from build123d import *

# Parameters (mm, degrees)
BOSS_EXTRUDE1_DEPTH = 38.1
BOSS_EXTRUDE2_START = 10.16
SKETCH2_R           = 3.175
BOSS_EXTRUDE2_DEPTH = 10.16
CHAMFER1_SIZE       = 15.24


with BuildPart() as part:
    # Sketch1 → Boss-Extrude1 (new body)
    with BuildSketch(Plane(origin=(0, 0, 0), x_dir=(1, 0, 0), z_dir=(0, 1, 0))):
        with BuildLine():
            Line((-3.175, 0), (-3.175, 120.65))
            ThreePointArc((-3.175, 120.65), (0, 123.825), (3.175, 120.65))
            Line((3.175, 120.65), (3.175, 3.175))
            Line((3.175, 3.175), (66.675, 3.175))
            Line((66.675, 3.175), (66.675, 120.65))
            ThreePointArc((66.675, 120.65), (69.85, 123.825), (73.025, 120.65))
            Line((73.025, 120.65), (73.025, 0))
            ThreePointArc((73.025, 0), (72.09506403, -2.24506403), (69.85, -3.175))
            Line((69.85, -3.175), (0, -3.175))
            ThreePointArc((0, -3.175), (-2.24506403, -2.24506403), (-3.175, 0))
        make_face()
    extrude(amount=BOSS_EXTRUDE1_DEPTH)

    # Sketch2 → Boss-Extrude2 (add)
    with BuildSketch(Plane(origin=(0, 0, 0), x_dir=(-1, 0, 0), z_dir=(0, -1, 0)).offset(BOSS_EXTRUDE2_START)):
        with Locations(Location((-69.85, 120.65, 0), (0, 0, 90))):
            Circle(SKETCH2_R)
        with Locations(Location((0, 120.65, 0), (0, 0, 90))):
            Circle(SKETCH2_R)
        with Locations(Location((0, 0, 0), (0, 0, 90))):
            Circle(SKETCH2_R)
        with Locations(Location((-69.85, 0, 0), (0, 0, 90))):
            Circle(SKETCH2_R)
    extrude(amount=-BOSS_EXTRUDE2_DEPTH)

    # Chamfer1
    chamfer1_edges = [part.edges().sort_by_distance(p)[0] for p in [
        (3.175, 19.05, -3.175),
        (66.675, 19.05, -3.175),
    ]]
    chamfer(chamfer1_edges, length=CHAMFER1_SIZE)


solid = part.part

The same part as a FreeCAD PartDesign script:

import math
import FreeCAD as App
import Part
import Sketcher
Q = App.Units.Quantity


def edges_at(feature, points):
    """Names of the edges that pass closest to the given points."""
    edges = feature.Shape.Edges
    near = lambda p: min(range(len(edges)), key=lambda i: edges[i].distToShape(Part.Vertex(*p))[0])
    return sorted({f"Edge{near(p) + 1}" for p in points})

doc = App.newDocument("Part")
body = doc.addObject("PartDesign::Body", "Body")

# Sketch on XZ plane
sketch1 = body.newObject("Sketcher::SketchObject", "Sketch")
sketch1.AttachmentSupport = (doc.getObject("XZ_Plane"), [""])
sketch1.MapMode = "FlatFace"
sketch1.addGeometry(Part.LineSegment(App.Vector(-3.2, -120.7, 0), App.Vector(-3.2, 0, 0)), False)
sketch1.addGeometry(Part.ArcOfCircle(Part.Circle(App.Vector(0, 0, 0), App.Vector(0, 0, 1), 3.2), math.radians(90), math.radians(180)), False)
sketch1.addGeometry(Part.LineSegment(App.Vector(0, 3.2, 0), App.Vector(69.8, 3.2, 0)), False)
sketch1.addGeometry(Part.ArcOfCircle(Part.Circle(App.Vector(69.8, 0, 0), App.Vector(0, 0, 1), 3.2), math.radians(0), math.radians(90)), False)
sketch1.addGeometry(Part.LineSegment(App.Vector(73, 0, 0), App.Vector(73, -120.7, 0)), False)
sketch1.addGeometry(Part.ArcOfCircle(Part.Circle(App.Vector(69.8, -120.7, 0), App.Vector(0, 0, 1), 3.2), math.radians(180), math.radians(360)), False)
sketch1.addGeometry(Part.LineSegment(App.Vector(66.7, -120.7, 0), App.Vector(66.7, -3.2, 0)), False)
sketch1.addGeometry(Part.LineSegment(App.Vector(66.7, -3.2, 0), App.Vector(3.2, -3.2, 0)), False)
sketch1.addGeometry(Part.LineSegment(App.Vector(3.2, -3.2, 0), App.Vector(3.2, -120.7, 0)), False)
sketch1.addGeometry(Part.ArcOfCircle(Part.Circle(App.Vector(0, -120.7, 0), App.Vector(0, 0, 1), 3.2), math.radians(180), math.radians(360)), False)
sketch1.addConstraint(Sketcher.Constraint("Tangent", 0, 2, 1, 2))
sketch1.addConstraint(Sketcher.Constraint("Tangent", 1, 1, 2, 1))
sketch1.addConstraint(Sketcher.Constraint("Tangent", 2, 2, 3, 2))
sketch1.addConstraint(Sketcher.Constraint("Tangent", 3, 1, 4, 1))
sketch1.addConstraint(Sketcher.Constraint("Tangent", 4, 2, 5, 2))
sketch1.addConstraint(Sketcher.Constraint("Tangent", 5, 1, 6, 1))
sketch1.addConstraint(Sketcher.Constraint("Coincident", 6, 2, 7, 1))
sketch1.addConstraint(Sketcher.Constraint("Coincident", 7, 2, 8, 1))
sketch1.addConstraint(Sketcher.Constraint("Tangent", 8, 2, 9, 2))
sketch1.addConstraint(Sketcher.Constraint("Tangent", 9, 1, 0, 1))
sketch1.addConstraint(Sketcher.Constraint("Vertical", 0))
sketch1.addConstraint(Sketcher.Constraint("Horizontal", 2))
sketch1.addConstraint(Sketcher.Constraint("Vertical", 4))
sketch1.addConstraint(Sketcher.Constraint("Vertical", 6))
sketch1.addConstraint(Sketcher.Constraint("Horizontal", 7))
sketch1.addConstraint(Sketcher.Constraint("Vertical", 8))
sketch1.addConstraint(Sketcher.Constraint("Coincident", 1, 3, -1, 1))
sketch1.addConstraint(Sketcher.Constraint("Equal", 1, 3))
sketch1.addConstraint(Sketcher.Constraint("Equal", 3, 5))
sketch1.addConstraint(Sketcher.Constraint("Equal", 5, 9))
sketch1.addConstraint(Sketcher.Constraint("Horizontal", 5, 3, 9, 3))
sketch1.addConstraint(Sketcher.Constraint("DistanceX", 7, 2, 7, 1, Q("2.5 in")))
sketch1.addConstraint(Sketcher.Constraint("Radius", 1, Q("0.125 in")))
sketch1.addConstraint(Sketcher.Constraint("DistanceY", 0, 1, 0, 2, Q("4.75 in")))
sketch1.addConstraint(Sketcher.Constraint("DistanceY", 6, 1, 6, 2, Q("4.625 in")))
pad1 = body.newObject("PartDesign::Pad", "Pad")
pad1.Profile = sketch1
pad1.Length = Q("1.5 in")
pad1.Reversed = True

# Sketch on XZ plane
sketch2 = body.newObject("Sketcher::SketchObject", "Sketch001")
sketch2.AttachmentSupport = (doc.getObject("XZ_Plane"), [""])
sketch2.MapMode = "FlatFace"
sketch2.AttachmentOffset = App.Placement(App.Vector(0, 0, 0.4 * 25.4), App.Rotation())
sketch2.addGeometry(Part.Circle(App.Vector(69.8, -120.7, 0), App.Vector(0, 0, 1), 3.2), False)
sketch2.addGeometry(Part.Circle(App.Vector(0, -120.7, 0), App.Vector(0, 0, 1), 3.2), False)
sketch2.addGeometry(Part.Circle(App.Vector(0, 0, 0), App.Vector(0, 0, 1), 3.2), False)
sketch2.addGeometry(Part.Circle(App.Vector(69.8, 0, 0), App.Vector(0, 0, 1), 3.2), False)
sketch2.addConstraint(Sketcher.Constraint("Coincident", 2, 3, -1, 1))
sketch2.addConstraint(Sketcher.Constraint("Equal", 0, 1))
sketch2.addConstraint(Sketcher.Constraint("Equal", 1, 2))
sketch2.addConstraint(Sketcher.Constraint("Equal", 2, 3))
sketch2.addConstraint(Sketcher.Constraint("PointOnObject", 1, 3, -2))
sketch2.addConstraint(Sketcher.Constraint("PointOnObject", 3, 3, -1))
sketch2.addConstraint(Sketcher.Constraint("Horizontal", 0, 3, 1, 3))
sketch2.addConstraint(Sketcher.Constraint("Vertical", 0, 3, 3, 3))
sketch2.addConstraint(Sketcher.Constraint("Diameter", 0, Q("0.25 in")))
sketch2.addConstraint(Sketcher.Constraint("DistanceX", -1, 1, 0, 3, Q("2.75 in")))
sketch2.addConstraint(Sketcher.Constraint("DistanceY", 0, 3, -1, 1, Q("4.75 in")))
pad2 = body.newObject("PartDesign::Pad", "Pad001")
pad2.Profile = sketch2
pad2.Length = Q("0.4 in")
pad2.Reversed = True
doc.recompute()

chamfer = body.newObject("PartDesign::Chamfer", "Chamfer")
chamfer.Base = (pad2, edges_at(pad2, [(3.175, 19.05, -3.175), (66.675, 19.05, -3.175)]))
chamfer.Size = Q("0.6 in")

doc.recompute()
